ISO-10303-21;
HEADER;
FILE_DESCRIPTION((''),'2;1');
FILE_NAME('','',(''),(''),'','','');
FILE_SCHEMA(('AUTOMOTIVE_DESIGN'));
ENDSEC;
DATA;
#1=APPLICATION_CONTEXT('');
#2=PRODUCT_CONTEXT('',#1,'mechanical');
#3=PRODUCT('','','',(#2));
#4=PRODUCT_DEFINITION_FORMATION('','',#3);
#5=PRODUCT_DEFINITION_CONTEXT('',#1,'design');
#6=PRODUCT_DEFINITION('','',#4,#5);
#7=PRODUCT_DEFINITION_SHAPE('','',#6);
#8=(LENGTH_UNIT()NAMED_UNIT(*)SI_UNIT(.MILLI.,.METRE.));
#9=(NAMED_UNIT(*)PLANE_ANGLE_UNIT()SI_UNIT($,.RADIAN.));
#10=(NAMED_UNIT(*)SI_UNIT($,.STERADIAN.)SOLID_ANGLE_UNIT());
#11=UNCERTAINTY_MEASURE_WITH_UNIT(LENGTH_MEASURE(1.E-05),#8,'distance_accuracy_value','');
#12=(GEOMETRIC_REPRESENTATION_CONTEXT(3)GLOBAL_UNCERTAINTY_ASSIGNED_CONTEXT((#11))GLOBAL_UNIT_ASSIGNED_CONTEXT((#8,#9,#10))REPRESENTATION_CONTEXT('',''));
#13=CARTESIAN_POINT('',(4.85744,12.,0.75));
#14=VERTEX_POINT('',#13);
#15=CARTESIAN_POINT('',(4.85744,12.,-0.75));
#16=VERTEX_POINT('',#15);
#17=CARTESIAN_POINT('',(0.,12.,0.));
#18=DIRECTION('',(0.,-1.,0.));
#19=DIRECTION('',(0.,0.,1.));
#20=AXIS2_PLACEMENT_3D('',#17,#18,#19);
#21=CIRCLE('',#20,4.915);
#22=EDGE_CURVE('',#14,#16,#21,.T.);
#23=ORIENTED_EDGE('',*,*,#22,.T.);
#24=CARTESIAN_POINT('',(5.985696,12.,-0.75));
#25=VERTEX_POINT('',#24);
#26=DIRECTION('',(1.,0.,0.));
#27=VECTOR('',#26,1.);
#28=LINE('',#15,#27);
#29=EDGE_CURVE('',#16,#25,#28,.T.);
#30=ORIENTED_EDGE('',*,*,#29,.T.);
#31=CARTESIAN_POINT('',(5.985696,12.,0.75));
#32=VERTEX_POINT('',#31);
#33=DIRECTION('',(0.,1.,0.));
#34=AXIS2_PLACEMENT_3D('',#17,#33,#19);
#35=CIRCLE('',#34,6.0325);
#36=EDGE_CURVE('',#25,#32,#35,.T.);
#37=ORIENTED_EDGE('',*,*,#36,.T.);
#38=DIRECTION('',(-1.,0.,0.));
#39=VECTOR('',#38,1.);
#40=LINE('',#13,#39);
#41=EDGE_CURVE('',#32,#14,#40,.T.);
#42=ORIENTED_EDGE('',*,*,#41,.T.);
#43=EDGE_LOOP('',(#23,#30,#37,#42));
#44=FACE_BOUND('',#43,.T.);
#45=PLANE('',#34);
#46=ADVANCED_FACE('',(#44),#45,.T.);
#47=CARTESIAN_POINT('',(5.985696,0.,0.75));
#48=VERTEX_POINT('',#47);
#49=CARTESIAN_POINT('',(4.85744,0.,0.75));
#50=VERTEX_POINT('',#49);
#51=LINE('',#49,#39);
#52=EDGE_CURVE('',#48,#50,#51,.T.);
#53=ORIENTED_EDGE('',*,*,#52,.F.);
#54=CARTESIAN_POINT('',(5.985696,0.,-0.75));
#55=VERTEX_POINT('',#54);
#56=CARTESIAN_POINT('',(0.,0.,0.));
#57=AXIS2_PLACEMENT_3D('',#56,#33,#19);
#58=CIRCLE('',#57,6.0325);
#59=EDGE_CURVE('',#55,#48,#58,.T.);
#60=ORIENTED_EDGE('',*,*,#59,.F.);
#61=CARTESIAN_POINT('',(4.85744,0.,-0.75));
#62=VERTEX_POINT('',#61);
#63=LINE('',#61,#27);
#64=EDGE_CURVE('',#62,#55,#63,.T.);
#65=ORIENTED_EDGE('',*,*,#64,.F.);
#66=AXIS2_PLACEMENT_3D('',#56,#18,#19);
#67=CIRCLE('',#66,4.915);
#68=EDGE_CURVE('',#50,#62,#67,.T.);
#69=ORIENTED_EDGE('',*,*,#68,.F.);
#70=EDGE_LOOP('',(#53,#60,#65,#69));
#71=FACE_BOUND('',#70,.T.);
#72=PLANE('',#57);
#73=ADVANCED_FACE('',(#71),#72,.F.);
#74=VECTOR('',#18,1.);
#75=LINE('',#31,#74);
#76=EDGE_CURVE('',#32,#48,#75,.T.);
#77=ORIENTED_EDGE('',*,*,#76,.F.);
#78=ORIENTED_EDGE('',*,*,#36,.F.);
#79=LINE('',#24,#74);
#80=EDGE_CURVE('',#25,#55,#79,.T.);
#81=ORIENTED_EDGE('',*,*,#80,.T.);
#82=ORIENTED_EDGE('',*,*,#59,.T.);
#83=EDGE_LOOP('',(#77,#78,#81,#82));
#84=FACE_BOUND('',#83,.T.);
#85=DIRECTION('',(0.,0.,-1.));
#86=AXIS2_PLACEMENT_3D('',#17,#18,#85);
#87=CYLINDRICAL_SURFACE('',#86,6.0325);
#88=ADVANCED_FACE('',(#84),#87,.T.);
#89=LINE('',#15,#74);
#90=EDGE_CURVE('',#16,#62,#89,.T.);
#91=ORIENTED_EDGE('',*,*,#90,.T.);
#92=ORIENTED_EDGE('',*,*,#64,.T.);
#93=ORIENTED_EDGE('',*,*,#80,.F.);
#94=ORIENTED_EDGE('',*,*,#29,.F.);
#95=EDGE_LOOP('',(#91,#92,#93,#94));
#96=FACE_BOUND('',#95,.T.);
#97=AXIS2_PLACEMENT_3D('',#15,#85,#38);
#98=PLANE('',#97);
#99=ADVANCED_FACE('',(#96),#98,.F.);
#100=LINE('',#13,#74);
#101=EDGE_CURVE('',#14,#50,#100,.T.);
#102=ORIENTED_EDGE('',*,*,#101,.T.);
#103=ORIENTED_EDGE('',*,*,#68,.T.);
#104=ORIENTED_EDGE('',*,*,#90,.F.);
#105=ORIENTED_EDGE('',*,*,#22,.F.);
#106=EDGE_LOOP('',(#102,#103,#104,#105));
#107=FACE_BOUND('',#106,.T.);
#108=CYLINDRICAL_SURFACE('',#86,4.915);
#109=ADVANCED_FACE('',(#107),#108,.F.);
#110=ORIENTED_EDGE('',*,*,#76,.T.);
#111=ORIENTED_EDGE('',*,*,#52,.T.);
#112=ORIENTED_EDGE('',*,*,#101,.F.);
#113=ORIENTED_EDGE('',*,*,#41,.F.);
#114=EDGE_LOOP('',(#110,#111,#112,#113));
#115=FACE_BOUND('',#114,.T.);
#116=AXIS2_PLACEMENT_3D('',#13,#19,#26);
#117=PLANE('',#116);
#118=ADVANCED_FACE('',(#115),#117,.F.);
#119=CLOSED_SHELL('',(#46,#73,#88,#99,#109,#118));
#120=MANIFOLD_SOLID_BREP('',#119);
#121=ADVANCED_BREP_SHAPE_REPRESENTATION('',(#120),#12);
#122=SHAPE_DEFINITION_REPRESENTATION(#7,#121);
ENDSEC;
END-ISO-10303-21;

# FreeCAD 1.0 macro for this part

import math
import FreeCAD as App
import Part
import Sketcher

V = App.Vector
Q = App.Units.Quantity

doc = App.newDocument("Part")
body = doc.addObject("PartDesign::Body", "Body")

# Sketch on XZ plane
sketch1 = doc.addObject("Sketcher::SketchObject", "Sketch")
body.addObject(sketch1)
sketch1.AttachmentSupport = (doc.XZ_Plane, [""])
sketch1.MapMode = "FlatFace"
sketch1.addGeometry([
    Part.LineSegment(V(6, 0.8, 0), V(4.9, 0.8, 0)),
    Part.ArcOfCircle(Part.Circle(V(0, 0, 0), V(0, 0, 1), 4.9), math.radians(9), math.radians(351)),
    Part.LineSegment(V(4.9, -0.8, 0), V(6, -0.8, 0)),
    Part.ArcOfCircle(Part.Circle(V(0, 0, 0), V(0, 0, 1), 6), math.radians(7), math.radians(353)),
], False)
sketch1.addConstraint([
    Sketcher.Constraint("Coincident", 0, 2, 1, 1),
    Sketcher.Constraint("Coincident", 1, 2, 2, 1),
    Sketcher.Constraint("Coincident", 2, 2, 3, 2),
    Sketcher.Constraint("Coincident", 3, 1, 0, 1),
    Sketcher.Constraint("Horizontal", 0),
    Sketcher.Constraint("Horizontal", 2),
    Sketcher.Constraint("Coincident", 1, 3, -1, 1),
    Sketcher.Constraint("Coincident", 3, 3, -1, 1),
    Sketcher.Constraint("Vertical", 0, 2, 1, 2),
    Sketcher.Constraint("Radius", 1, Q("4.915 mm")),
    Sketcher.Constraint("Radius", 3, Q("6.0325 mm")),
    Sketcher.Constraint("DistanceY", 1, 2, 0, 2, Q("1.5 mm")),
])
pad1 = doc.addObject("PartDesign::Pad", "Pad")
body.addObject(pad1)
pad1.Profile = sketch1
pad1.Length = 12
pad1.Reversed = True

doc.recompute()
